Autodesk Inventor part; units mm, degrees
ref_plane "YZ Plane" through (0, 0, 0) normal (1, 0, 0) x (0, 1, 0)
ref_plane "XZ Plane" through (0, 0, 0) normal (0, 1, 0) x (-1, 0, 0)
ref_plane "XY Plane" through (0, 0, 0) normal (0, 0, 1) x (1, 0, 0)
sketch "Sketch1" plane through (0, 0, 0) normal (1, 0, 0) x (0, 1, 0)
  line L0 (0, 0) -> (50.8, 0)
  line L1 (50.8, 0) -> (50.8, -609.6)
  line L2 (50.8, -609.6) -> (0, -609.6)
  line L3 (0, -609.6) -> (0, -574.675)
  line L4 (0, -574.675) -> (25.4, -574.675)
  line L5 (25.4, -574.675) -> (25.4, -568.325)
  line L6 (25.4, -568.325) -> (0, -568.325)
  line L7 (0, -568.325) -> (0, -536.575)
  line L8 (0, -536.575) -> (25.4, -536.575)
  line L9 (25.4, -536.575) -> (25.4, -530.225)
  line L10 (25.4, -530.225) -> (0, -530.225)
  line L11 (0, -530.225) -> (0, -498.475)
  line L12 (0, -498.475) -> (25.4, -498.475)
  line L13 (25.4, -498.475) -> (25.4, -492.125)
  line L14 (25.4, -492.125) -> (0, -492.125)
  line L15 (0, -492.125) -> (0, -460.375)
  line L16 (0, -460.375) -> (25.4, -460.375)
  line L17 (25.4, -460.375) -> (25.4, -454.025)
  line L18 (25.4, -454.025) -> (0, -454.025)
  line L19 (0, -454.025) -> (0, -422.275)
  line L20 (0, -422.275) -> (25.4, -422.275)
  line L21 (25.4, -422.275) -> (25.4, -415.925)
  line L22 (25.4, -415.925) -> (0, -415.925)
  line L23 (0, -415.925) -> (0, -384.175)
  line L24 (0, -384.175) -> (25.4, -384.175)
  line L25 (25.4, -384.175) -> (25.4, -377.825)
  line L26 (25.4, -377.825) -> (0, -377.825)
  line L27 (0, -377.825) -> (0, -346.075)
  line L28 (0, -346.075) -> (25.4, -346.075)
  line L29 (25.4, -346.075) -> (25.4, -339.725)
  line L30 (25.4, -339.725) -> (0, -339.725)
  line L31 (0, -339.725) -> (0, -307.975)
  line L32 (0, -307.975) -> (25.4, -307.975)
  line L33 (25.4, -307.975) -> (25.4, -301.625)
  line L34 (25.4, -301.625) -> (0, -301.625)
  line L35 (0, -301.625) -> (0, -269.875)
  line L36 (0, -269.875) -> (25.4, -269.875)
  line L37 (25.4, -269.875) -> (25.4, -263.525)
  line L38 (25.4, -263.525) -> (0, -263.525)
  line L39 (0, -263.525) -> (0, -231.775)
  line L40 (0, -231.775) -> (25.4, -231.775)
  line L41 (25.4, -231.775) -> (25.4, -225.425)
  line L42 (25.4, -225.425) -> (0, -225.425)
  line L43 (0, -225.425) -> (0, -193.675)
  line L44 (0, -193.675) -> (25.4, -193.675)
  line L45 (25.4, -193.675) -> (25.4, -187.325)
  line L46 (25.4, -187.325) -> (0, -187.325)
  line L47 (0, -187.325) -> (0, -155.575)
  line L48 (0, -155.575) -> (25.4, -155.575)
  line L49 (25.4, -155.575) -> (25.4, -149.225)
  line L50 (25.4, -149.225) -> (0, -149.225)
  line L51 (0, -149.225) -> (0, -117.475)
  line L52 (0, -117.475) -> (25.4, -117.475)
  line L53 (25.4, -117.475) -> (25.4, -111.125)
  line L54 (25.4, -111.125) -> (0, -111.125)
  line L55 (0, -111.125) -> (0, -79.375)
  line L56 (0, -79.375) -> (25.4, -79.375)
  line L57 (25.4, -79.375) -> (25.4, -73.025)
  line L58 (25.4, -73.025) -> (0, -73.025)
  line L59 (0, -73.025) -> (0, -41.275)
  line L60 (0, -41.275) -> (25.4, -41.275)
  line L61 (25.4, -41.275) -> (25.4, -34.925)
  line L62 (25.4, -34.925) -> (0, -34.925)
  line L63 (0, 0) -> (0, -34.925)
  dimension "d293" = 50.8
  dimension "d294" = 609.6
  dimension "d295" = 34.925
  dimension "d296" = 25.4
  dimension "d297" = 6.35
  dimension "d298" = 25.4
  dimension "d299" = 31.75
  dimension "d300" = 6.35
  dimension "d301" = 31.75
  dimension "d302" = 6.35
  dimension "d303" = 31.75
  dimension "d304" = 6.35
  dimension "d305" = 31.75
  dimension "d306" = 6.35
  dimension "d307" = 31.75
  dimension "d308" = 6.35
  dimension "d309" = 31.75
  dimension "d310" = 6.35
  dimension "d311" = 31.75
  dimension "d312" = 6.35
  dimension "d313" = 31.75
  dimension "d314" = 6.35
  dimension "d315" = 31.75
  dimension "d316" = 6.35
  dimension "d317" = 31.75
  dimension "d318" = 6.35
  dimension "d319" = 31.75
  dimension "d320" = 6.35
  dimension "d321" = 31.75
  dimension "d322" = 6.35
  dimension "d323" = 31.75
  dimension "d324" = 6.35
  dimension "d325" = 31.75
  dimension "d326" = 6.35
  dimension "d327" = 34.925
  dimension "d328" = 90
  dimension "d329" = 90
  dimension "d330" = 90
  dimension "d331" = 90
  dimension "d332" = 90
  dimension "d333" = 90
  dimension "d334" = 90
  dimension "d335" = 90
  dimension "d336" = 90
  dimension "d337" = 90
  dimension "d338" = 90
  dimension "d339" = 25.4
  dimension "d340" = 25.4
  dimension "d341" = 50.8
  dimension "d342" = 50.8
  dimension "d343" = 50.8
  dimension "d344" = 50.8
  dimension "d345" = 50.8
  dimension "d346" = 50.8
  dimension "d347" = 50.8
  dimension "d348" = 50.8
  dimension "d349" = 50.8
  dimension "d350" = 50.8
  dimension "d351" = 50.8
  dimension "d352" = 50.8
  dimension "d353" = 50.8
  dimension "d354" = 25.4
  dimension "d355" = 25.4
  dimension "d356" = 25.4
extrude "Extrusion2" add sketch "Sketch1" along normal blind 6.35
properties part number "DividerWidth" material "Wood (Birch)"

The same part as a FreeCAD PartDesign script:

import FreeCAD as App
import Part
import Sketcher
Q = App.Units.Quantity

doc = App.newDocument("Part")
params = doc.addObject("Spreadsheet::Sheet", "Params")
for row, (alias, value) in enumerate([
    ("sketch1_width", "2 in"),
    ("sketch1_width2", "1 in"),
    ("sketch1_height", "24 in"),
    ("sketch1_height2", "0.25 in"),
    ("sketch1_height3", "1.25 in"),
    ("pad1_length", "0.25 in"),
], start=1):
    params.set(f"A{row}", alias)
    params.set(f"B{row}", "=" + value)
    params.setAlias(f"B{row}", alias)

body = doc.addObject("PartDesign::Body", "Body")

sketch1 = body.newObject("Sketcher::SketchObject", "Sketch")
sketch1.AttachmentSupport = (doc.getObject("YZ_Plane"), [""])
sketch1.MapMode = "FlatFace"
sketch1.addGeometry(Part.LineSegment(App.Vector(50.8, 0, 0), App.Vector(0, 0, 0)), False)
sketch1.addGeometry(Part.LineSegment(App.Vector(0, 0, 0), App.Vector(0, -34.925, 0)), False)
sketch1.addGeometry(Part.LineSegment(App.Vector(0, -34.925, 0), App.Vector(25.4, -34.925, 0)), False)
sketch1.addGeometry(Part.LineSegment(App.Vector(25.4, -34.925, 0), App.Vector(25.4, -41.275, 0)), False)
sketch1.addGeometry(Part.LineSegment(App.Vector(25.4, -41.275, 0), App.Vector(0, -41.275, 0)), False)
sketch1.addGeometry(Part.LineSegment(App.Vector(0, -41.275, 0), App.Vector(0, -73.025, 0)), False)
sketch1.addGeometry(Part.LineSegment(App.Vector(0, -73.025, 0), App.Vector(25.4, -73.025, 0)), False)
sketch1.addGeometry(Part.LineSegment(App.Vector(25.4, -73.025, 0), App.Vector(25.4, -79.375, 0)), False)
sketch1.addGeometry(Part.LineSegment(App.Vector(25.4, -79.375, 0), App.Vector(0, -79.375, 0)), False)
sketch1.addGeometry(Part.LineSegment(App.Vector(0, -79.375, 0), App.Vector(0, -111.125, 0)), False)
sketch1.addGeometry(Part.LineSegment(App.Vector(0, -111.125, 0), App.Vector(25.4, -111.125, 0)), False)
sketch1.addGeometry(Part.LineSegment(App.Vector(25.4, -111.125, 0), App.Vector(25.4, -117.475, 0)), False)
sketch1.addGeometry(Part.LineSegment(App.Vector(25.4, -117.475, 0), App.Vector(0, -117.475, 0)), False)
sketch1.addGeometry(Part.LineSegment(App.Vector(0, -117.475, 0), App.Vector(0, -149.225, 0)), False)
sketch1.addGeometry(Part.LineSegment(App.Vector(0, -149.225, 0), App.Vector(25.4, -149.225, 0)), False)
sketch1.addGeometry(Part.LineSegment(App.Vector(25.4, -149.225, 0), App.Vector(25.4, -155.575, 0)), False)
sketch1.addGeometry(Part.LineSegment(App.Vector(25.4, -155.575, 0), App.Vector(0, -155.575, 0)), False)
sketch1.addGeometry(Part.LineSegment(App.Vector(0, -155.575, 0), App.Vector(0, -187.325, 0)), False)
sketch1.addGeometry(Part.LineSegment(App.Vector(0, -187.325, 0), App.Vector(25.4, -187.325, 0)), False)
sketch1.addGeometry(Part.LineSegment(App.Vector(25.4, -187.325, 0), App.Vector(25.4, -193.675, 0)), False)
sketch1.addGeometry(Part.LineSegment(App.Vector(25.4, -193.675, 0), App.Vector(0, -193.675, 0)), False)
sketch1.addGeometry(Part.LineSegment(App.Vector(0, -193.675, 0), App.Vector(0, -225.425, 0)), False)
sketch1.addGeometry(Part.LineSegment(App.Vector(0, -225.425, 0), App.Vector(25.4, -225.425, 0)), False)
sketch1.addGeometry(Part.LineSegment(App.Vector(25.4, -225.425, 0), App.Vector(25.4, -231.775, 0)), False)
sketch1.addGeometry(Part.LineSegment(App.Vector(25.4, -231.775, 0), App.Vector(0, -231.775, 0)), False)
sketch1.addGeometry(Part.LineSegment(App.Vector(0, -231.775, 0), App.Vector(0, -263.525, 0)), False)
sketch1.addGeometry(Part.LineSegment(App.Vector(0, -263.525, 0), App.Vector(25.4, -263.525, 0)), False)
sketch1.addGeometry(Part.LineSegment(App.Vector(25.4, -263.525, 0), App.Vector(25.4, -269.875, 0)), False)
sketch1.addGeometry(Part.LineSegment(App.Vector(25.4, -269.875, 0), App.Vector(0, -269.875, 0)), False)
sketch1.addGeometry(Part.LineSegment(App.Vector(0, -269.875, 0), App.Vector(0, -301.625, 0)), False)
sketch1.addGeometry(Part.LineSegment(App.Vector(0, -301.625, 0), App.Vector(25.4, -301.625, 0)), False)
sketch1.addGeometry(Part.LineSegment(App.Vector(25.4, -301.625, 0), App.Vector(25.4, -307.975, 0)), False)
sketch1.addGeometry(Part.LineSegment(App.Vector(25.4, -307.975, 0), App.Vector(0, -307.975, 0)), False)
sketch1.addGeometry(Part.LineSegment(App.Vector(0, -307.975, 0), App.Vector(0, -339.725, 0)), False)
sketch1.addGeometry(Part.LineSegment(App.Vector(0, -339.725, 0), App.Vector(25.4, -339.725, 0)), False)
sketch1.addGeometry(Part.LineSegment(App.Vector(25.4, -339.725, 0), App.Vector(25.4, -346.075, 0)), False)
sketch1.addGeometry(Part.LineSegment(App.Vector(25.4, -346.075, 0), App.Vector(0, -346.075, 0)), False)
sketch1.addGeometry(Part.LineSegment(App.Vector(0, -346.075, 0), App.Vector(0, -377.825, 0)), False)
sketch1.addGeometry(Part.LineSegment(App.Vector(0, -377.825, 0), App.Vector(25.4, -377.825, 0)), False)
sketch1.addGeometry(Part.LineSegment(App.Vector(25.4, -377.825, 0), App.Vector(25.4, -384.175, 0)), False)
sketch1.addGeometry(Part.LineSegment(App.Vector(25.4, -384.175, 0), App.Vector(0, -384.175, 0)), False)
sketch1.addGeometry(Part.LineSegment(App.Vector(0, -384.175, 0), App.Vector(0, -415.925, 0)), False)
sketch1.addGeometry(Part.LineSegment(App.Vector(0, -415.925, 0), App.Vector(25.4, -415.925, 0)), False)
sketch1.addGeometry(Part.LineSegment(App.Vector(25.4, -415.925, 0), App.Vector(25.4, -422.275, 0)), False)
sketch1.addGeometry(Part.LineSegment(App.Vector(25.4, -422.275, 0), App.Vector(0, -422.275, 0)), False)
sketch1.addGeometry(Part.LineSegment(App.Vector(0, -422.275, 0), App.Vector(0, -454.025, 0)), False)
sketch1.addGeometry(Part.LineSegment(App.Vector(0, -454.025, 0), App.Vector(25.4, -454.025, 0)), False)
sketch1.addGeometry(Part.LineSegment(App.Vector(25.4, -454.025, 0), App.Vector(25.4, -460.375, 0)), False)
sketch1.addGeometry(Part.LineSegment(App.Vector(25.4, -460.375, 0), App.Vector(0, -460.375, 0)), False)
sketch1.addGeometry(Part.LineSegment(App.Vector(0, -460.375, 0), App.Vector(0, -492.125, 0)), False)
sketch1.addGeometry(Part.LineSegment(App.Vector(0, -492.125, 0), App.Vector(25.4, -492.125, 0)), False)
sketch1.addGeometry(Part.LineSegment(App.Vector(25.4, -492.125, 0), App.Vector(25.4, -498.475, 0)), False)
sketch1.addGeometry(Part.LineSegment(App.Vector(25.4, -498.475, 0), App.Vector(0, -498.475, 0)), False)
sketch1.addGeometry(Part.LineSegment(App.Vector(0, -498.475, 0), App.Vector(0, -530.225, 0)), False)
sketch1.addGeometry(Part.LineSegment(App.Vector(0, -530.225, 0), App.Vector(25.4, -530.225, 0)), False)
sketch1.addGeometry(Part.LineSegment(App.Vector(25.4, -530.225, 0), App.Vector(25.4, -536.575, 0)), False)
sketch1.addGeometry(Part.LineSegment(App.Vector(25.4, -536.575, 0), App.Vector(0, -536.575, 0)), False)
sketch1.addGeometry(Part.LineSegment(App.Vector(0, -536.575, 0), App.Vector(0, -568.325, 0)), False)
sketch1.addGeometry(Part.LineSegment(App.Vector(0, -568.325, 0), App.Vector(25.4, -568.325, 0)), False)
sketch1.addGeometry(Part.LineSegment(App.Vector(25.4, -568.325, 0), App.Vector(25.4, -574.675, 0)), False)
sketch1.addGeometry(Part.LineSegment(App.Vector(25.4, -574.675, 0), App.Vector(0, -574.675, 0)), False)
sketch1.addGeometry(Part.LineSegment(App.Vector(0, -574.675, 0), App.Vector(0, -609.6, 0)), False)
sketch1.addGeometry(Part.LineSegment(App.Vector(0, -609.6, 0), App.Vector(50.8, -609.6, 0)), False)
sketch1.addGeometry(Part.LineSegment(App.Vector(50.8, -609.6, 0), App.Vector(50.8, 0, 0)), False)
sketch1.addConstraint(Sketcher.Constraint("Coincident", 0, 2, 1, 1))
sketch1.addConstraint(Sketcher.Constraint("Coincident", 1, 2, 2, 1))
sketch1.addConstraint(Sketcher.Constraint("Coincident", 2, 2, 3, 1))
sketch1.addConstraint(Sketcher.Constraint("Coincident", 3, 2, 4, 1))
sketch1.addConstraint(Sketcher.Constraint("Coincident", 4, 2, 5, 1))
sketch1.addConstraint(Sketcher.Constraint("Coincident", 5, 2, 6, 1))
sketch1.addConstraint(Sketcher.Constraint("Coincident", 6, 2, 7, 1))
sketch1.addConstraint(Sketcher.Constraint("Coincident", 7, 2, 8, 1))
sketch1.addConstraint(Sketcher.Constraint("Coincident", 8, 2, 9, 1))
sketch1.addConstraint(Sketcher.Constraint("Coincident", 9, 2, 10, 1))
sketch1.addConstraint(Sketcher.Constraint("Coincident", 10, 2, 11, 1))
sketch1.addConstraint(Sketcher.Constraint("Coincident", 11, 2, 12, 1))
sketch1.addConstraint(Sketcher.Constraint("Coincident", 12, 2, 13, 1))
sketch1.addConstraint(Sketcher.Constraint("Coincident", 13, 2, 14, 1))
sketch1.addConstraint(Sketcher.Constraint("Coincident", 14, 2, 15, 1))
sketch1.addConstraint(Sketcher.Constraint("Coincident", 15, 2, 16, 1))
sketch1.addConstraint(Sketcher.Constraint("Coincident", 16, 2, 17, 1))
sketch1.addConstraint(Sketcher.Constraint("Coincident", 17, 2, 18, 1))
sketch1.addConstraint(Sketcher.Constraint("Coincident", 18, 2, 19, 1))
sketch1.addConstraint(Sketcher.Constraint("Coincident", 19, 2, 20, 1))
sketch1.addConstraint(Sketcher.Constraint("Coincident", 20, 2, 21, 1))
sketch1.addConstraint(Sketcher.Constraint("Coincident", 21, 2, 22, 1))
sketch1.addConstraint(Sketcher.Constraint("Coincident", 22, 2, 23, 1))
sketch1.addConstraint(Sketcher.Constraint("Coincident", 23, 2, 24, 1))
sketch1.addConstraint(Sketcher.Constraint("Coincident", 24, 2, 25, 1))
sketch1.addConstraint(Sketcher.Constraint("Coincident", 25, 2, 26, 1))
sketch1.addConstraint(Sketcher.Constraint("Coincident", 26, 2, 27, 1))
sketch1.addConstraint(Sketcher.Constraint("Coincident", 27, 2, 28, 1))
sketch1.addConstraint(Sketcher.Constraint("Coincident", 28, 2, 29, 1))
sketch1.addConstraint(Sketcher.Constraint("Coincident", 29, 2, 30, 1))
sketch1.addConstraint(Sketcher.Constraint("Coincident", 30, 2, 31, 1))
sketch1.addConstraint(Sketcher.Constraint("Coincident", 31, 2, 32, 1))
sketch1.addConstraint(Sketcher.Constraint("Coincident", 32, 2, 33, 1))
sketch1.addConstraint(Sketcher.Constraint("Coincident", 33, 2, 34, 1))
sketch1.addConstraint(Sketcher.Constraint("Coincident", 34, 2, 35, 1))
sketch1.addConstraint(Sketcher.Constraint("Coincident", 35, 2, 36, 1))
sketch1.addConstraint(Sketcher.Constraint("Coincident", 36, 2, 37, 1))
sketch1.addConstraint(Sketcher.Constraint("Coincident", 37, 2, 38, 1))
sketch1.addConstraint(Sketcher.Constraint("Coincident", 38, 2, 39, 1))
sketch1.addConstraint(Sketcher.Constraint("Coincident", 39, 2, 40, 1))
sketch1.addConstraint(Sketcher.Constraint("Coincident", 40, 2, 41, 1))
sketch1.addConstraint(Sketcher.Constraint("Coincident", 41, 2, 42, 1))
sketch1.addConstraint(Sketcher.Constraint("Coincident", 42, 2, 43, 1))
sketch1.addConstraint(Sketcher.Constraint("Coincident", 43, 2, 44, 1))
sketch1.addConstraint(Sketcher.Constraint("Coincident", 44, 2, 45, 1))
sketch1.addConstraint(Sketcher.Constraint("Coincident", 45, 2, 46, 1))
sketch1.addConstraint(Sketcher.Constraint("Coincident", 46, 2, 47, 1))
sketch1.addConstraint(Sketcher.Constraint("Coincident", 47, 2, 48, 1))
sketch1.addConstraint(Sketcher.Constraint("Coincident", 48, 2, 49, 1))
sketch1.addConstraint(Sketcher.Constraint("Coincident", 49, 2, 50, 1))
sketch1.addConstraint(Sketcher.Constraint("Coincident", 50, 2, 51, 1))
sketch1.addConstraint(Sketcher.Constraint("Coincident", 51, 2, 52, 1))
sketch1.addConstraint(Sketcher.Constraint("Coincident", 52, 2, 53, 1))
sketch1.addConstraint(Sketcher.Constraint("Coincident", 53, 2, 54, 1))
sketch1.addConstraint(Sketcher.Constraint("Coincident", 54, 2, 55, 1))
sketch1.addConstraint(Sketcher.Constraint("Coincident", 55, 2, 56, 1))
sketch1.addConstraint(Sketcher.Constraint("Coincident", 56, 2, 57, 1))
sketch1.addConstraint(Sketcher.Constraint("Coincident", 57, 2, 58, 1))
sketch1.addConstraint(Sketcher.Constraint("Coincident", 58, 2, 59, 1))
sketch1.addConstraint(Sketcher.Constraint("Coincident", 59, 2, 60, 1))
sketch1.addConstraint(Sketcher.Constraint("Coincident", 60, 2, 61, 1))
sketch1.addConstraint(Sketcher.Constraint("Coincident", 61, 2, 62, 1))
sketch1.addConstraint(Sketcher.Constraint("Coincident", 62, 2, 63, 1))
sketch1.addConstraint(Sketcher.Constraint("Coincident", 63, 2, 0, 1))
sketch1.addConstraint(Sketcher.Constraint("Horizontal", 0))
sketch1.addConstraint(Sketcher.Constraint("Vertical", 1))
sketch1.addConstraint(Sketcher.Constraint("Horizontal", 2))
sketch1.addConstraint(Sketcher.Constraint("Vertical", 3))
sketch1.addConstraint(Sketcher.Constraint("Horizontal", 4))
sketch1.addConstraint(Sketcher.Constraint("Vertical", 5))
sketch1.addConstraint(Sketcher.Constraint("Horizontal", 6))
sketch1.addConstraint(Sketcher.Constraint("Vertical", 7))
sketch1.addConstraint(Sketcher.Constraint("Horizontal", 8))
sketch1.addConstraint(Sketcher.Constraint("Vertical", 9))
sketch1.addConstraint(Sketcher.Constraint("Horizontal", 10))
sketch1.addConstraint(Sketcher.Constraint("Vertical", 11))
sketch1.addConstraint(Sketcher.Constraint("Horizontal", 12))
sketch1.addConstraint(Sketcher.Constraint("Vertical", 13))
sketch1.addConstraint(Sketcher.Constraint("Horizontal", 14))
sketch1.addConstraint(Sketcher.Constraint("Vertical", 15))
sketch1.addConstraint(Sketcher.Constraint("Horizontal", 16))
sketch1.addConstraint(Sketcher.Constraint("Vertical", 17))
sketch1.addConstraint(Sketcher.Constraint("Horizontal", 18))
sketch1.addConstraint(Sketcher.Constraint("Vertical", 19))
sketch1.addConstraint(Sketcher.Constraint("Horizontal", 20))
sketch1.addConstraint(Sketcher.Constraint("Vertical", 21))
sketch1.addConstraint(Sketcher.Constraint("Horizontal", 22))
sketch1.addConstraint(Sketcher.Constraint("Vertical", 23))
sketch1.addConstraint(Sketcher.Constraint("Horizontal", 24))
sketch1.addConstraint(Sketcher.Constraint("Vertical", 25))
sketch1.addConstraint(Sketcher.Constraint("Horizontal", 26))
sketch1.addConstraint(Sketcher.Constraint("Vertical", 27))
sketch1.addConstraint(Sketcher.Constraint("Horizontal", 28))
sketch1.addConstraint(Sketcher.Constraint("Vertical", 29))
sketch1.addConstraint(Sketcher.Constraint("Horizontal", 30))
sketch1.addConstraint(Sketcher.Constraint("Vertical", 31))
sketch1.addConstraint(Sketcher.Constraint("Horizontal", 32))
sketch1.addConstraint(Sketcher.Constraint("Vertical", 33))
sketch1.addConstraint(Sketcher.Constraint("Horizontal", 34))
sketch1.addConstraint(Sketcher.Constraint("Vertical", 35))
sketch1.addConstraint(Sketcher.Constraint("Horizontal", 36))
sketch1.addConstraint(Sketcher.Constraint("Vertical", 37))
sketch1.addConstraint(Sketcher.Constraint("Horizontal", 38))
sketch1.addConstraint(Sketcher.Constraint("Vertical", 39))
sketch1.addConstraint(Sketcher.Constraint("Horizontal", 40))
sketch1.addConstraint(Sketcher.Constraint("Vertical", 41))
sketch1.addConstraint(Sketcher.Constraint("Horizontal", 42))
sketch1.addConstraint(Sketcher.Constraint("Vertical", 43))
sketch1.addConstraint(Sketcher.Constraint("Horizontal", 44))
sketch1.addConstraint(Sketcher.Constraint("Vertical", 45))
sketch1.addConstraint(Sketcher.Constraint("Horizontal", 46))
sketch1.addConstraint(Sketcher.Constraint("Vertical", 47))
sketch1.addConstraint(Sketcher.Constraint("Horizontal", 48))
sketch1.addConstraint(Sketcher.Constraint("Vertical", 49))
sketch1.addConstraint(Sketcher.Constraint("Horizontal", 50))
sketch1.addConstraint(Sketcher.Constraint("Vertical", 51))
sketch1.addConstraint(Sketcher.Constraint("Horizontal", 52))
sketch1.addConstraint(Sketcher.Constraint("Vertical", 53))
sketch1.addConstraint(Sketcher.Constraint("Horizontal", 54))
sketch1.addConstraint(Sketcher.Constraint("Vertical", 55))
sketch1.addConstraint(Sketcher.Constraint("Horizontal", 56))
sketch1.addConstraint(Sketcher.Constraint("Vertical", 57))
sketch1.addConstraint(Sketcher.Constraint("Horizontal", 58))
sketch1.addConstraint(Sketcher.Constraint("Vertical", 59))
sketch1.addConstraint(Sketcher.Constraint("Horizontal", 60))
sketch1.addConstraint(Sketcher.Constraint("Vertical", 61))
sketch1.addConstraint(Sketcher.Constraint("Horizontal", 62))
sketch1.addConstraint(Sketcher.Constraint("Vertical", 63))
sketch1.addConstraint(Sketcher.Constraint("Coincident", 0, 2, -1, 1))
sketch1.addConstraint(Sketcher.Constraint("PointOnObject", 4, 2, -2))
sketch1.addConstraint(Sketcher.Constraint("PointOnObject", 8, 2, -2))
sketch1.addConstraint(Sketcher.Constraint("PointOnObject", 12, 2, -2))
sketch1.addConstraint(Sketcher.Constraint("PointOnObject", 16, 2, -2))
sketch1.addConstraint(Sketcher.Constraint("PointOnObject", 20, 2, -2))
sketch1.addConstraint(Sketcher.Constraint("PointOnObject", 24, 2, -2))
sketch1.addConstraint(Sketcher.Constraint("PointOnObject", 28, 2, -2))
sketch1.addConstraint(Sketcher.Constraint("PointOnObject", 32, 2, -2))
sketch1.addConstraint(Sketcher.Constraint("PointOnObject", 36, 2, -2))
sketch1.addConstraint(Sketcher.Constraint("PointOnObject", 40, 2, -2))
sketch1.addConstraint(Sketcher.Constraint("PointOnObject", 44, 2, -2))
sketch1.addConstraint(Sketcher.Constraint("PointOnObject", 48, 2, -2))
sketch1.addConstraint(Sketcher.Constraint("PointOnObject", 52, 2, -2))
sketch1.addConstraint(Sketcher.Constraint("PointOnObject", 56, 2, -2))
sketch1.addConstraint(Sketcher.Constraint("PointOnObject", 60, 2, -2))
sketch1.addConstraint(Sketcher.Constraint("Vertical", 3, 2, 6, 2))
sketch1.addConstraint(Sketcher.Constraint("Vertical", 7, 2, 10, 2))
sketch1.addConstraint(Sketcher.Constraint("Vertical", 11, 2, 14, 2))
sketch1.addConstraint(Sketcher.Constraint("Vertical", 15, 2, 18, 2))
sketch1.addConstraint(Sketcher.Constraint("Vertical", 19, 2, 22, 2))
sketch1.addConstraint(Sketcher.Constraint("Vertical", 23, 2, 26, 2))
sketch1.addConstraint(Sketcher.Constraint("Vertical", 27, 2, 30, 2))
sketch1.addConstraint(Sketcher.Constraint("Vertical", 31, 2, 34, 2))
sketch1.addConstraint(Sketcher.Constraint("Vertical", 35, 2, 38, 2))
sketch1.addConstraint(Sketcher.Constraint("Vertical", 39, 2, 42, 2))
sketch1.addConstraint(Sketcher.Constraint("Vertical", 43, 2, 46, 2))
sketch1.addConstraint(Sketcher.Constraint("Vertical", 47, 2, 50, 2))
sketch1.addConstraint(Sketcher.Constraint("Vertical", 51, 2, 54, 2))
sketch1.addConstraint(Sketcher.Constraint("Vertical", 55, 2, 58, 2))
sketch1.addConstraint(Sketcher.Constraint("Equal", 3, 7))
sketch1.addConstraint(Sketcher.Constraint("Equal", 5, 9))
sketch1.addConstraint(Sketcher.Constraint("Equal", 7, 11))
sketch1.addConstraint(Sketcher.Constraint("Equal", 9, 13))
sketch1.addConstraint(Sketcher.Constraint("Equal", 11, 15))
sketch1.addConstraint(Sketcher.Constraint("Equal", 13, 17))
sketch1.addConstraint(Sketcher.Constraint("Equal", 15, 19))
sketch1.addConstraint(Sketcher.Constraint("Equal", 17, 21))
sketch1.addConstraint(Sketcher.Constraint("Equal", 19, 23))
sketch1.addConstraint(Sketcher.Constraint("Equal", 21, 25))
sketch1.addConstraint(Sketcher.Constraint("Equal", 23, 27))
sketch1.addConstraint(Sketcher.Constraint("Equal", 25, 29))
sketch1.addConstraint(Sketcher.Constraint("Equal", 27, 31))
sketch1.addConstraint(Sketcher.Constraint("Equal", 29, 33))
sketch1.addConstraint(Sketcher.Constraint("Equal", 31, 35))
sketch1.addConstraint(Sketcher.Constraint("Equal", 33, 37))
sketch1.addConstraint(Sketcher.Constraint("Equal", 35, 39))
sketch1.addConstraint(Sketcher.Constraint("Equal", 37, 41))
sketch1.addConstraint(Sketcher.Constraint("Equal", 39, 43))
sketch1.addConstraint(Sketcher.Constraint("Equal", 41, 45))
sketch1.addConstraint(Sketcher.Constraint("Equal", 43, 47))
sketch1.addConstraint(Sketcher.Constraint("Equal", 45, 49))
sketch1.addConstraint(Sketcher.Constraint("Equal", 47, 51))
sketch1.addConstraint(Sketcher.Constraint("Equal", 49, 53))
sketch1.addConstraint(Sketcher.Constraint("Equal", 51, 55))
sketch1.addConstraint(Sketcher.Constraint("Equal", 53, 57))
sketch1.addConstraint(Sketcher.Constraint("Equal", 55, 59))
sketch1.addConstraint(Sketcher.Constraint("Equal", 1, 61))
sketch1.addConstraint(Sketcher.Constraint("DistanceX", 0, 2, 0, 1, Q("2 in")))
sketch1.addConstraint(Sketcher.Constraint("DistanceX", 2, 1, 2, 2, Q("1 in")))
sketch1.addConstraint(Sketcher.Constraint("DistanceY", 63, 1, 63, 2, Q("24 in")))
sketch1.addConstraint(Sketcher.Constraint("DistanceY", 3, 2, 3, 1, Q("0.25 in")))
sketch1.addConstraint(Sketcher.Constraint("DistanceY", 5, 2, 5, 1, Q("1.25 in")))
sketch1.setExpression("Constraints[186]", "Params.sketch1_width")
sketch1.setExpression("Constraints[187]", "Params.sketch1_width2")
sketch1.setExpression("Constraints[188]", "Params.sketch1_height")
sketch1.setExpression("Constraints[189]", "Params.sketch1_height2")
sketch1.setExpression("Constraints[190]", "Params.sketch1_height3")
pad1 = body.newObject("PartDesign::Pad", "Pad")
pad1.Profile = sketch1
pad1.setExpression("Length", "Params.pad1_length")

doc.recompute()
